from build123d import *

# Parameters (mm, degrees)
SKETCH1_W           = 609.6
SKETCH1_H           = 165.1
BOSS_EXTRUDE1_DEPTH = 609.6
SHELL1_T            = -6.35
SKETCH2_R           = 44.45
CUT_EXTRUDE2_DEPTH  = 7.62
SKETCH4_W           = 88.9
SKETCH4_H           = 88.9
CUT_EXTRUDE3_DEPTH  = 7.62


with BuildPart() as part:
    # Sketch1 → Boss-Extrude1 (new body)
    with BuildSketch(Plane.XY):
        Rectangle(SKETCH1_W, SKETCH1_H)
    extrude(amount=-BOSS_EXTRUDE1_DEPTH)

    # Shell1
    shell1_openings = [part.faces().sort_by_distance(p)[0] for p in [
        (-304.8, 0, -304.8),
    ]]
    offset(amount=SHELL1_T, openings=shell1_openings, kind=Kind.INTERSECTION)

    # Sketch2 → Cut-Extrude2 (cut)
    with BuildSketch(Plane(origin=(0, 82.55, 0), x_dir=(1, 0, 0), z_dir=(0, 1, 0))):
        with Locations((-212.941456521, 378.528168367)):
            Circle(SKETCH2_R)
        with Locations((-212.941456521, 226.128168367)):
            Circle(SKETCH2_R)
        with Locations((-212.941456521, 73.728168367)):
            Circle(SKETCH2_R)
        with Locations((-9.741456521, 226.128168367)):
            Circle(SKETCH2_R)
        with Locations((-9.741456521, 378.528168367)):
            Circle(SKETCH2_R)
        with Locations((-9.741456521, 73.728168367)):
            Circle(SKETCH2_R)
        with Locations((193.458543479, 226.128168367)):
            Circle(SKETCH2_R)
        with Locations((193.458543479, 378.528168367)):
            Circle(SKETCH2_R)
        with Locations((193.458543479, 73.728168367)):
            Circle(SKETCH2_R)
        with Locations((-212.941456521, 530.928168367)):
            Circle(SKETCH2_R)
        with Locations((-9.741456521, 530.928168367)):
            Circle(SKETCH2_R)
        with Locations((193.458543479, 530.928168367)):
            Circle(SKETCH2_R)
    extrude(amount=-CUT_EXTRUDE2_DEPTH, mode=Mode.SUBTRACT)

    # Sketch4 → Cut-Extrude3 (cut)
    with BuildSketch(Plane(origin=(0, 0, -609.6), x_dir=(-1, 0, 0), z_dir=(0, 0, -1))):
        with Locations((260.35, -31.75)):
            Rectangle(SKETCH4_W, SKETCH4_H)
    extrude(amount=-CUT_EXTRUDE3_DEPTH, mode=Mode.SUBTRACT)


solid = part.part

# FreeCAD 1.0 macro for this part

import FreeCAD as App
import Part
import Sketcher
Q = App.Units.Quantity


def faces_at(feature, points):
    """Names of the faces that lie closest to the given points."""
    faces = feature.Shape.Faces
    near = lambda p: min(range(len(faces)), key=lambda i: faces[i].distToShape(Part.Vertex(*p))[0])
    return sorted({f"Face{near(p) + 1}" for p in points})

doc = App.newDocument("Part")
body = doc.addObject("PartDesign::Body", "Body")

# Sketch on XY plane
sketch1 = body.newObject("Sketcher::SketchObject", "Sketch")
sketch1.AttachmentSupport = (doc.getObject("XY_Plane"), [""])
sketch1.MapMode = "FlatFace"
sketch1.addGeometry([
    Part.LineSegment(App.Vector(-305, 83, 0), App.Vector(-305, -83, 0)),
    Part.LineSegment(App.Vector(-305, -83, 0), App.Vector(305, -83, 0)),
    Part.LineSegment(App.Vector(305, -83, 0), App.Vector(305, 83, 0)),
    Part.LineSegment(App.Vector(305, 83, 0), App.Vector(-305, 83, 0)),
], False)
sketch1.addConstraint([
    Sketcher.Constraint("Coincident", 0, 2, 1, 1),
    Sketcher.Constraint("Coincident", 1, 2, 2, 1),
    Sketcher.Constraint("Coincident", 2, 2, 3, 1),
    Sketcher.Constraint("Coincident", 3, 2, 0, 1),
    Sketcher.Constraint("Vertical", 0),
    Sketcher.Constraint("Horizontal", 1),
    Sketcher.Constraint("Vertical", 2),
    Sketcher.Constraint("Horizontal", 3),
    Sketcher.Constraint("Symmetric", 0, 2, 2, 2, -1, 1),
    Sketcher.Constraint("DistanceX", 1, 1, 1, 2, Q("24 in")),
    Sketcher.Constraint("DistanceY", 0, 2, 0, 1, Q("6.5 in")),
])
pad1 = body.newObject("PartDesign::Pad", "Pad")
pad1.Profile = sketch1
pad1.Length = Q("24 in")
pad1.Reversed = True
doc.recompute()

thickness = body.newObject("PartDesign::Thickness", "Thickness")
thickness.Base = (pad1, faces_at(pad1, [(-304.8, 0, -304.8)]))
thickness.Value = Q("0.25 in")
thickness.Reversed = True
thickness.Join = "Intersection"

# Sketch on XZ plane
sketch2 = body.newObject("Sketcher::SketchObject", "Sketch001")
sketch2.AttachmentSupport = (doc.getObject("XZ_Plane"), [""])
sketch2.MapMode = "FlatFace"
sketch2.AttachmentOffset = App.Placement(App.Vector(0, 0, -3.25 * 25.4), App.Rotation())
sketch2.addGeometry([
    Part.Circle(App.Vector(-213, -379, 0), App.Vector(0, 0, 1), 44),  # 0
    Part.Circle(App.Vector(-213, -226, 0), App.Vector(0, 0, 1), 44),  # 1
    Part.Circle(App.Vector(-213, -74, 0), App.Vector(0, 0, 1), 44),  # 2
    Part.Circle(App.Vector(-10, -226, 0), App.Vector(0, 0, 1), 44),  # 3
    Part.Circle(App.Vector(-10, -379, 0), App.Vector(0, 0, 1), 44),  # 4
    Part.Circle(App.Vector(-10, -74, 0), App.Vector(0, 0, 1), 44),  # 5
    Part.Circle(App.Vector(193, -226, 0), App.Vector(0, 0, 1), 44),  # 6
    Part.Circle(App.Vector(193, -379, 0), App.Vector(0, 0, 1), 44),  # 7
    Part.Circle(App.Vector(193, -74, 0), App.Vector(0, 0, 1), 44),  # 8
    Part.Circle(App.Vector(-213, -531, 0), App.Vector(0, 0, 1), 44),  # 9
    Part.Circle(App.Vector(-10, -531, 0), App.Vector(0, 0, 1), 44),  # 10
    Part.Circle(App.Vector(193, -531, 0), App.Vector(0, 0, 1), 44),  # 11
], False)
sketch2.addConstraint([
    Sketcher.Constraint("Equal", 0, 1),
    Sketcher.Constraint("Equal", 1, 2),
    Sketcher.Constraint("Equal", 2, 3),
    Sketcher.Constraint("Equal", 3, 4),
    Sketcher.Constraint("Equal", 4, 5),
    Sketcher.Constraint("Equal", 5, 6),
    Sketcher.Constraint("Equal", 6, 7),
    Sketcher.Constraint("Equal", 7, 8),
    Sketcher.Constraint("Equal", 8, 9),
    Sketcher.Constraint("Equal", 9, 10),
    Sketcher.Constraint("Equal", 10, 11),
    Sketcher.Constraint("Horizontal", 1, 3, 3, 3),
    Sketcher.Constraint("Horizontal", 0, 3, 4, 3),
    Sketcher.Constraint("Horizontal", 2, 3, 5, 3),
    Sketcher.Constraint("Horizontal", 3, 3, 6, 3),
    Sketcher.Constraint("Horizontal", 4, 3, 7, 3),
    Sketcher.Constraint("Horizontal", 5, 3, 8, 3),
    Sketcher.Constraint("Horizontal", 9, 3, 10, 3),
    Sketcher.Constraint("Horizontal", 10, 3, 11, 3),
    Sketcher.Constraint("Vertical", 0, 3, 1, 3),
    Sketcher.Constraint("Vertical", 1, 3, 2, 3),
    Sketcher.Constraint("Vertical", 3, 3, 4, 3),
    Sketcher.Constraint("Vertical", 4, 3, 5, 3),
    Sketcher.Constraint("Vertical", 6, 3, 7, 3),
    Sketcher.Constraint("Vertical", 7, 3, 8, 3),
    Sketcher.Constraint("Vertical", 2, 3, 9, 3),
    Sketcher.Constraint("Vertical", 5, 3, 10, 3),
    Sketcher.Constraint("Vertical", 8, 3, 11, 3),
    Sketcher.Constraint("Diameter", 0, Q("3.5 in")),
    Sketcher.Constraint("DistanceY", 0, 3, 1, 3, Q("6 in")),
    Sketcher.Constraint("DistanceY", 1, 3, 2, 3, Q("6 in")),
    Sketcher.Constraint("DistanceX", 1, 3, 3, 3, Q("8 in")),
    Sketcher.Constraint("DistanceX", 3, 3, 6, 3, Q("8 in")),
    Sketcher.Constraint("DistanceY", 9, 3, 0, 3, Q("6 in")),
    Sketcher.Constraint("DistanceY", 0, 3, -1, 1, Q("378.528168 mm")),
    Sketcher.Constraint("DistanceX", 0, 3, -1, 1, Q("212.941457 mm")),
])
pocket1 = body.newObject("PartDesign::Pocket", "Pocket")
pocket1.Profile = sketch2
pocket1.Length = Q("0.3 in")
pocket1.Reversed = True

# Sketch on XY plane
sketch3 = body.newObject("Sketcher::SketchObject", "Sketch002")
sketch3.AttachmentSupport = (doc.getObject("XY_Plane"), [""])
sketch3.MapMode = "FlatFace"
sketch3.AttachmentOffset = App.Placement(App.Vector(0, 0, -24 * 25.4), App.Rotation())
sketch3.addGeometry([
    Part.LineSegment(App.Vector(-216, 13, 0), App.Vector(-216, -76, 0)),
    Part.LineSegment(App.Vector(-216, -76, 0), App.Vector(-305, -76, 0)),
    Part.LineSegment(App.Vector(-305, -76, 0), App.Vector(-305, 13, 0)),
    Part.LineSegment(App.Vector(-305, 13, 0), App.Vector(-216, 13, 0)),
], False)
sketch3.addConstraint([
    Sketcher.Constraint("Coincident", 0, 2, 1, 1),
    Sketcher.Constraint("Coincident", 1, 2, 2, 1),
    Sketcher.Constraint("Coincident", 2, 2, 3, 1),
    Sketcher.Constraint("Coincident", 3, 2, 0, 1),
    Sketcher.Constraint("Vertical", 0),
    Sketcher.Constraint("Horizontal", 1),
    Sketcher.Constraint("Vertical", 2),
    Sketcher.Constraint("Horizontal", 3),
    Sketcher.Constraint("Equal", 3, 0),
    Sketcher.Constraint("DistanceX", 1, 2, 1, 1, Q("3.5 in")),
    Sketcher.Constraint("DistanceY", 0, 2, -1, 1, Q("3 in")),
    Sketcher.Constraint("DistanceX", 1, 2, -1, 1, Q("12 in")),
])
pocket2 = body.newObject("PartDesign::Pocket", "Pocket001")
pocket2.Profile = sketch3
pocket2.Length = Q("0.3 in")
pocket2.Reversed = True

doc.recompute()
